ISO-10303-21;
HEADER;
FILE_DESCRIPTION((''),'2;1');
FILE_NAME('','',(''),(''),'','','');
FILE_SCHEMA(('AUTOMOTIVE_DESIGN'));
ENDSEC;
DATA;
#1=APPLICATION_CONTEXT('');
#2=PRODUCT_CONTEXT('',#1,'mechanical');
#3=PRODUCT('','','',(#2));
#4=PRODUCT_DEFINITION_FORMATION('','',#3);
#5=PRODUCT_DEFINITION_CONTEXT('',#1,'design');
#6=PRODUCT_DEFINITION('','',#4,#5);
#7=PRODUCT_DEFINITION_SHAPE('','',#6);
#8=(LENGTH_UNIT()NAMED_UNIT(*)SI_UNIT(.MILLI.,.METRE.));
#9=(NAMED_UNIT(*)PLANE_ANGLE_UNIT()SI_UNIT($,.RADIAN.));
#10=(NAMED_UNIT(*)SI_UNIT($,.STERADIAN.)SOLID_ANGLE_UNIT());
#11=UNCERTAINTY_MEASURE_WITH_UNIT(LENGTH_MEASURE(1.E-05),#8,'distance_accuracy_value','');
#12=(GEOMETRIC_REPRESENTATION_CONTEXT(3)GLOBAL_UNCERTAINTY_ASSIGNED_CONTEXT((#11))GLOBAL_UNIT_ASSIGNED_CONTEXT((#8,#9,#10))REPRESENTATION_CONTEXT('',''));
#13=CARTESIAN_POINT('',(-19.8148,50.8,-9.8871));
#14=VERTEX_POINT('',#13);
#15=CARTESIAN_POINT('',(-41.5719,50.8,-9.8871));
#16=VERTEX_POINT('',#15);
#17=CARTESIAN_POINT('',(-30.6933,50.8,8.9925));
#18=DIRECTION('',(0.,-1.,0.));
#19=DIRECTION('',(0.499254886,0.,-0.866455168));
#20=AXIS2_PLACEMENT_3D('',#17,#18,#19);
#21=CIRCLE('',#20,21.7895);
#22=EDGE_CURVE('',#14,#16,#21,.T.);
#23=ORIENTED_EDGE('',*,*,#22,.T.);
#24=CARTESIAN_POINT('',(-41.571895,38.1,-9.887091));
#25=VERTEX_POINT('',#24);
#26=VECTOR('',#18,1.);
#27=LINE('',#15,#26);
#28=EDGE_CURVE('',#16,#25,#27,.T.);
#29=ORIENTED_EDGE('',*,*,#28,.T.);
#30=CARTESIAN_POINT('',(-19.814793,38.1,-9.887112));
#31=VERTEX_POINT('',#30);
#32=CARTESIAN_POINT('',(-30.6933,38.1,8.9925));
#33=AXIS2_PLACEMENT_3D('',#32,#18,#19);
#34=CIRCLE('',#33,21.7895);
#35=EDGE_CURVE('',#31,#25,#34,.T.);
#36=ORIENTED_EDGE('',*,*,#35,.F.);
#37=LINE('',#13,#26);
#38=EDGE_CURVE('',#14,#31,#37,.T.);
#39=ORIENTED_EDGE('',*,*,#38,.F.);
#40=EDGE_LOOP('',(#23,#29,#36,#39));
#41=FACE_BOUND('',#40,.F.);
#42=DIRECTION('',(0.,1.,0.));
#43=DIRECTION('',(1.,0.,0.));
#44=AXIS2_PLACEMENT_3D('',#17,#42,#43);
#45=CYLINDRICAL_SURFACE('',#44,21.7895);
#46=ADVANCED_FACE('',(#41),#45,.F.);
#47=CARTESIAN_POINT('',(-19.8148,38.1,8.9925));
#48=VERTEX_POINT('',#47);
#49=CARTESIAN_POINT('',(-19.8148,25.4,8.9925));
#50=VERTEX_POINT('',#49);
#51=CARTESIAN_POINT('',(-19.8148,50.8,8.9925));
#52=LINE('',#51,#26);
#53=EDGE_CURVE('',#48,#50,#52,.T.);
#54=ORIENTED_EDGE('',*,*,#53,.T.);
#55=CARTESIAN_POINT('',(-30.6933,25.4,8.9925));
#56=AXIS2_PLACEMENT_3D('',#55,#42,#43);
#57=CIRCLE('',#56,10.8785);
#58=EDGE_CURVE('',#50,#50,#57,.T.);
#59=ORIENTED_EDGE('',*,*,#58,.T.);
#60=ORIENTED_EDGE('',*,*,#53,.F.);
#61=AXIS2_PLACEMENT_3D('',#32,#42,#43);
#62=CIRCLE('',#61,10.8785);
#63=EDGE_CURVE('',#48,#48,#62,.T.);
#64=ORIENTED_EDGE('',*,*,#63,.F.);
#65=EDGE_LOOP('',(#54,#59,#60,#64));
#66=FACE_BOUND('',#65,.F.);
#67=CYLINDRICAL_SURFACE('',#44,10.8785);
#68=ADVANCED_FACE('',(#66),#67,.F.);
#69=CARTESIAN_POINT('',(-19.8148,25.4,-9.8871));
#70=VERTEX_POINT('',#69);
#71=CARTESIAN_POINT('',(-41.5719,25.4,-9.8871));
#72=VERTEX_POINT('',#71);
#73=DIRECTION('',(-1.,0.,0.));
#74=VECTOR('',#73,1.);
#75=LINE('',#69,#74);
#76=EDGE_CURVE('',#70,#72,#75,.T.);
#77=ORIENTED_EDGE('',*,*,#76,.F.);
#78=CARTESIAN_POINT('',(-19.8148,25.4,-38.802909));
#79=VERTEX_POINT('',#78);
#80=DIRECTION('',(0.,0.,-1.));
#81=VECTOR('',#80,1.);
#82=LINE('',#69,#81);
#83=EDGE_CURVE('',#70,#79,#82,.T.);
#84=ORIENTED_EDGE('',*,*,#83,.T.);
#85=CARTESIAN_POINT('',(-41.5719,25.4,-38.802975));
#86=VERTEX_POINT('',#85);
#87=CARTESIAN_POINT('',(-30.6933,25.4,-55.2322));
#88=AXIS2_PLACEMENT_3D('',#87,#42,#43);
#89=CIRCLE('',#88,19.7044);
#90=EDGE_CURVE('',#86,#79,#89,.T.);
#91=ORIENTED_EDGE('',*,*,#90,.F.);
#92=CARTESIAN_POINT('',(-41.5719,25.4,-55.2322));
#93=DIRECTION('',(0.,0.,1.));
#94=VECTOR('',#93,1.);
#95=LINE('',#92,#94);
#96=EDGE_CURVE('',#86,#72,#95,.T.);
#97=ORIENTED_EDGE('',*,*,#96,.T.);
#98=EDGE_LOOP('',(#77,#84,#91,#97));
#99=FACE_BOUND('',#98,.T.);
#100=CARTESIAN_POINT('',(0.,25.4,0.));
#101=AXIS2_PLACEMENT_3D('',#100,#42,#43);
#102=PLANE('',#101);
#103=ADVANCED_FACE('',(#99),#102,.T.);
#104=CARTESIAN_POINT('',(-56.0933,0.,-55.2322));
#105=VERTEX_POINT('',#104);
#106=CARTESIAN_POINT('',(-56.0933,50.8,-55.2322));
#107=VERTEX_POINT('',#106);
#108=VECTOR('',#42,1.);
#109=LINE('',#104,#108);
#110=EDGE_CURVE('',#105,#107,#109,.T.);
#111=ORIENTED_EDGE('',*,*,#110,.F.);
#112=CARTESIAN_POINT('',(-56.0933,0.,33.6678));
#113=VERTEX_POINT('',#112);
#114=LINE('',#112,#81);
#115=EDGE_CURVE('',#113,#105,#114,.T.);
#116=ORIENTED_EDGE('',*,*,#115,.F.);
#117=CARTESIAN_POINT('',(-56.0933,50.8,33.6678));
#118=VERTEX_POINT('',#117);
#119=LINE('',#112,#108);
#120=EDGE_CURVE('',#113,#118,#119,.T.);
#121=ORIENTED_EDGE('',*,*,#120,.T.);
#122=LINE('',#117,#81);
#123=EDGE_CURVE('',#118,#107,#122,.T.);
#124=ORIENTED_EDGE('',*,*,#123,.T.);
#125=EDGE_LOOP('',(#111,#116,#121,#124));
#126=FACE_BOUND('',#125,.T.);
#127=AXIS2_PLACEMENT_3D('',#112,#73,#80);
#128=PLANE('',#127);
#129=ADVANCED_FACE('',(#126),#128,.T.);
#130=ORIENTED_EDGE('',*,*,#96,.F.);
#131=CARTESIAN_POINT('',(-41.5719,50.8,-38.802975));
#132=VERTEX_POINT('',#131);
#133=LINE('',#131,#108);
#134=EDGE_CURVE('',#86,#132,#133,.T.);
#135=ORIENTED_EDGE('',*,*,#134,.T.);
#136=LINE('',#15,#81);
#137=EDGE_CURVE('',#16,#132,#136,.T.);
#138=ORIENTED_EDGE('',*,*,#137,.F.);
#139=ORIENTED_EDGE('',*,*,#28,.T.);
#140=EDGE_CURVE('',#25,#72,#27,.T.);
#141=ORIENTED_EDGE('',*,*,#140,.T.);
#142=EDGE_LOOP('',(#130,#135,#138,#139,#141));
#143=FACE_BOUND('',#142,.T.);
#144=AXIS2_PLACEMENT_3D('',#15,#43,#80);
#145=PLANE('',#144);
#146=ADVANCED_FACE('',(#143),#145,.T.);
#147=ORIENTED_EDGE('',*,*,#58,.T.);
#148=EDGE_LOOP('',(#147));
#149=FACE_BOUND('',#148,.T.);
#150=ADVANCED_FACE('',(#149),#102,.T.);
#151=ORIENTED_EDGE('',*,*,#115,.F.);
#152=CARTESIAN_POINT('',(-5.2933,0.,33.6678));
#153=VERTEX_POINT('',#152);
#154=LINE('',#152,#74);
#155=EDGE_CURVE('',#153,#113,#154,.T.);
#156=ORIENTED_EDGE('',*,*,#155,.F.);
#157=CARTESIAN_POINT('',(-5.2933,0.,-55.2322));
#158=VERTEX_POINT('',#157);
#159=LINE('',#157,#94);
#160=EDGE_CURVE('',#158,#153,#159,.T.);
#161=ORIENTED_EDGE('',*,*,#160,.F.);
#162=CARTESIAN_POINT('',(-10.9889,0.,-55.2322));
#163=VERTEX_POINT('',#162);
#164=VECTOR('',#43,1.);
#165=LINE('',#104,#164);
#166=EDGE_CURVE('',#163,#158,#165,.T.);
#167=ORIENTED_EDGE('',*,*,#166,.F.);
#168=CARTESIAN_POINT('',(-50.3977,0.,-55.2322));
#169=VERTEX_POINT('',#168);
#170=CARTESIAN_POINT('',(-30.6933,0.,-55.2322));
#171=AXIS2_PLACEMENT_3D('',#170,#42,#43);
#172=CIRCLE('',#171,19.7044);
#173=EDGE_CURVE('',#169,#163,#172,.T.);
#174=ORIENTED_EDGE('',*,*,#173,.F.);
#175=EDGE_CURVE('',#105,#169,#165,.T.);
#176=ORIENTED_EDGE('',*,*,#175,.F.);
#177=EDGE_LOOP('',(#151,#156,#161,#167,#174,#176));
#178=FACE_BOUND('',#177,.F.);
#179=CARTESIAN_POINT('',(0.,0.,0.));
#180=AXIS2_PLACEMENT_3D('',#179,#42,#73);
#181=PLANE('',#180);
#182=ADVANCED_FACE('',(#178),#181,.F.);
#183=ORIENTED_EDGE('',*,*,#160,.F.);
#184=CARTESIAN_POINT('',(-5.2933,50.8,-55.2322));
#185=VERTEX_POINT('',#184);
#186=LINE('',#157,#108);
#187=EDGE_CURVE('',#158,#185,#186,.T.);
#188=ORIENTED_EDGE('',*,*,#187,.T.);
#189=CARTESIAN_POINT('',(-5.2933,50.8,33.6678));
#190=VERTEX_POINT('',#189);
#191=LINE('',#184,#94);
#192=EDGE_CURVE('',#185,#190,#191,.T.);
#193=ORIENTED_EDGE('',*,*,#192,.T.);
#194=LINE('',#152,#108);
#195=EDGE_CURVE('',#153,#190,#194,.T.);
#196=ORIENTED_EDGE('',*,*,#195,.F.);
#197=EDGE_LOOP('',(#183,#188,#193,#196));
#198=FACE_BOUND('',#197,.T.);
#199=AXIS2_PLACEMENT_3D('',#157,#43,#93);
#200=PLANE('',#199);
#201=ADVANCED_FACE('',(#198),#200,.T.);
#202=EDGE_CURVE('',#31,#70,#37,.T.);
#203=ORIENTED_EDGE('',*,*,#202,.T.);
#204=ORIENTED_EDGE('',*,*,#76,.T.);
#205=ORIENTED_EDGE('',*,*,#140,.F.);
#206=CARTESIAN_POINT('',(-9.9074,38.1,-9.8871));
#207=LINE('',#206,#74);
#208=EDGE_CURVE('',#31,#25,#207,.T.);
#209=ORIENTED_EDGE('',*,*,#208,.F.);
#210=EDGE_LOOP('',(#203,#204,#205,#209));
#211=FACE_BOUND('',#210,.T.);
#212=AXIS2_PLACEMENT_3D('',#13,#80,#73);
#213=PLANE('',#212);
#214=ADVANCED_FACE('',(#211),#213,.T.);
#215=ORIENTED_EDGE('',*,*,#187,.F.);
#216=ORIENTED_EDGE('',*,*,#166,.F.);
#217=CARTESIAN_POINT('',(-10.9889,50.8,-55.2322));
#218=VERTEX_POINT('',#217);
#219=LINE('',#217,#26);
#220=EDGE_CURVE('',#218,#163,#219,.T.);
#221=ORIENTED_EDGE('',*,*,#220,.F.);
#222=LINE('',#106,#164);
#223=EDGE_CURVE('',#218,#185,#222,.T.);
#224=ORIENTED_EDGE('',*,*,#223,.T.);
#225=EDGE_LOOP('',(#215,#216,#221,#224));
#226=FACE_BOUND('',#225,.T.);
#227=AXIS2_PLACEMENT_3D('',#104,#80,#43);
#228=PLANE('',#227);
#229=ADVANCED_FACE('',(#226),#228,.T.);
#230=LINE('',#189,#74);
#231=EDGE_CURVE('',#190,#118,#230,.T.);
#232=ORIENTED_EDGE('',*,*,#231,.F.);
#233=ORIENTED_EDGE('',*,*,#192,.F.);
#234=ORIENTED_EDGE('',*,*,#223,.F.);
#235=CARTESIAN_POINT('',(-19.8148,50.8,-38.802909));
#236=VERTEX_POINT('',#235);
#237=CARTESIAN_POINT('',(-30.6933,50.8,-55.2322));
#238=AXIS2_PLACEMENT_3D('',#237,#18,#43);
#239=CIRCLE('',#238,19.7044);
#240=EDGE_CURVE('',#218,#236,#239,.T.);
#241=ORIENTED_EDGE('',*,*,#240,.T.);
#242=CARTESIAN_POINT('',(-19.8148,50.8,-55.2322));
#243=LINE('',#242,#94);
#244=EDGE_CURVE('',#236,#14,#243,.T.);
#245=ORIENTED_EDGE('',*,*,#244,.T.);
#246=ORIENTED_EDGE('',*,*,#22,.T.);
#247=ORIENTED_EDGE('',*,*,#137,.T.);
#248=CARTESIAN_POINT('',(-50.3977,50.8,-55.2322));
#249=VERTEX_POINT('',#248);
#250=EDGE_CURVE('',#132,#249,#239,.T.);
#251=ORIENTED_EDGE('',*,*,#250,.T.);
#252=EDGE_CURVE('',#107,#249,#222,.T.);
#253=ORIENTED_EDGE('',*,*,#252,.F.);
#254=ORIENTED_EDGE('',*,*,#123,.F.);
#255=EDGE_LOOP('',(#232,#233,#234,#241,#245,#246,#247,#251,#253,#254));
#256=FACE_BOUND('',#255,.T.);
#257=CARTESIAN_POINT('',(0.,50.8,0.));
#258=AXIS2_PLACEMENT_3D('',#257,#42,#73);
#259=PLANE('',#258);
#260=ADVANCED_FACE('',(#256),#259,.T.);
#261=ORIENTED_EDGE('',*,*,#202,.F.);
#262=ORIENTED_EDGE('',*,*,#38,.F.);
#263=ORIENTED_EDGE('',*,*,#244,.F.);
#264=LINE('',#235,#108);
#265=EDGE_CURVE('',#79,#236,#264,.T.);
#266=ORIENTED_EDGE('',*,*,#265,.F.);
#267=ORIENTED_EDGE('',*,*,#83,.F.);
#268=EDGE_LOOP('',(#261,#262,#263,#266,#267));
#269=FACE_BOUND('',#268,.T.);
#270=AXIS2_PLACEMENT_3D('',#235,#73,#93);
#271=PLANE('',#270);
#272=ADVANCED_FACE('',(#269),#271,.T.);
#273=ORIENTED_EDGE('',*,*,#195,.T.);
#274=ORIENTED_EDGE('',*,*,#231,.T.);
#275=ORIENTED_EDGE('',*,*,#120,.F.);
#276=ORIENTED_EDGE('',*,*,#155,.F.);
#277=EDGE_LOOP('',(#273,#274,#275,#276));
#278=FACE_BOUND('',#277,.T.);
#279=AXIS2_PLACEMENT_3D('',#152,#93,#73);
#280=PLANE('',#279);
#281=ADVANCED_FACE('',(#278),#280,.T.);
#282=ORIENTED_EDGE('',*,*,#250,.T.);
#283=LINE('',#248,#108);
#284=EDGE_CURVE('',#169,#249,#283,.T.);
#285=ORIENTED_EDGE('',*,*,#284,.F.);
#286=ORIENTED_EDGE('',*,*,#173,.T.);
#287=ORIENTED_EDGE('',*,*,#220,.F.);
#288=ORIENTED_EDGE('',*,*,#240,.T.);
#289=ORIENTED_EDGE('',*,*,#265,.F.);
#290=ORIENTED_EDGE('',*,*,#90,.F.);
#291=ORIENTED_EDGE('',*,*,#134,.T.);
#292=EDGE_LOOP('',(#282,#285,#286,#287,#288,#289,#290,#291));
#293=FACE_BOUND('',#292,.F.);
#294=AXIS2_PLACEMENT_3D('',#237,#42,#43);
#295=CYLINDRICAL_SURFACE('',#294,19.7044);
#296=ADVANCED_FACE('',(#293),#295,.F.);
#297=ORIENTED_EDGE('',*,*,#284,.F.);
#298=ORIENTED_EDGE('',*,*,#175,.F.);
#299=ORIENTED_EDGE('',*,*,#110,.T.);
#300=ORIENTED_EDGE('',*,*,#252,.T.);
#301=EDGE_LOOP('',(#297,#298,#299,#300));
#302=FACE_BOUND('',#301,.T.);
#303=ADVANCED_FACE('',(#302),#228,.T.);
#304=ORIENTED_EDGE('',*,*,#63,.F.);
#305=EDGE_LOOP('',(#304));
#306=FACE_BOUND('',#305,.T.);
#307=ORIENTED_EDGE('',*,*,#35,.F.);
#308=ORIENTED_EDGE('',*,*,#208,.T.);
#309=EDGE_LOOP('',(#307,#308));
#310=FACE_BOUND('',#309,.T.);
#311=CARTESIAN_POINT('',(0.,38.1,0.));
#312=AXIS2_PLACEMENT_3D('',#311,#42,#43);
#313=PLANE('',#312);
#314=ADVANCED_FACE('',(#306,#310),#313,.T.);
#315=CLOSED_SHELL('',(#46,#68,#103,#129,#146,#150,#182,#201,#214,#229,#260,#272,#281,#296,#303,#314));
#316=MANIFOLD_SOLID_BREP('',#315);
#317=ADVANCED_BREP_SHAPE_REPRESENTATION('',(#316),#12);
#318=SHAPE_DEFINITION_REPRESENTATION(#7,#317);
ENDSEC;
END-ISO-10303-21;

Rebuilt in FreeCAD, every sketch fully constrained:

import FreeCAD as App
import Part
import Sketcher

V = App.Vector
Q = App.Units.Quantity


def add_polygon(sketch, points):
    """Adds a closed chain of lines whose ends are joined by coincident constraints."""
    first, n = sketch.GeometryCount, len(points)
    for a, b in zip(points, points[1:] + points[:1]):
        sketch.addGeometry(Part.LineSegment(App.Vector(*a, 0), App.Vector(*b, 0)), False)
    for i in range(n):
        sketch.addConstraint(Sketcher.Constraint("Coincident", first + i, 2, first + (i + 1) % n, 1))

doc = App.newDocument("Part")
body = doc.addObject("PartDesign::Body", "Body")

# Sketch on XZ plane
sketch1 = body.newObject("Sketcher::SketchObject", "Sketch")
sketch1.AttachmentSupport = (doc.getObject("XZ_Plane"), [""])
sketch1.MapMode = "FlatFace"
add_polygon(sketch1, [(-56.0933, 33.6678), (-5.2933, 33.6678), (-5.2933, -55.2322), (-56.0933, -55.2322)])  # lines 0-3
sketch1.addConstraint(Sketcher.Constraint("Horizontal", 0))
sketch1.addConstraint(Sketcher.Constraint("Vertical", 1))
sketch1.addConstraint(Sketcher.Constraint("Horizontal", 2))
sketch1.addConstraint(Sketcher.Constraint("Vertical", 3))
sketch1.addConstraint(Sketcher.Constraint("DistanceX", 0, 1, 0, 2, Q("2 in")))
sketch1.addConstraint(Sketcher.Constraint("DistanceY", 1, 2, 1, 1, Q("3.5 in")))
sketch1.addConstraint(Sketcher.Constraint("DistanceX", 0, 2, -1, 1, Q("0.2084 in")))
sketch1.addConstraint(Sketcher.Constraint("DistanceY", -1, 1, 0, 2, Q("1.3255 in")))
pad1 = body.newObject("PartDesign::Pad", "Pad")
pad1.Profile = sketch1
pad1.Length = Q("2 in")
pad1.Reversed = True

# Sketch on XZ plane
sketch2 = body.newObject("Sketcher::SketchObject", "Sketch001")
sketch2.AttachmentSupport = (doc.getObject("XZ_Plane"), [""])
sketch2.MapMode = "FlatFace"
sketch2.AttachmentOffset = App.Placement(V(0, 0, -2 * 25.4), App.Rotation())
sketch2.addGeometry(Part.Circle(V(-30.6933, -55.2322, 0), V(0, 0, 1), 19.7044), False)
sketch2.addConstraint(Sketcher.Constraint("Diameter", 0, 39.4088))
sketch2.addConstraint(Sketcher.Constraint("DistanceX", 0, 3, -1, 1, Q("1.2084 in")))
sketch2.addConstraint(Sketcher.Constraint("DistanceY", 0, 3, -1, 1, Q("2.1745 in")))
pocket1 = body.newObject("PartDesign::Pocket", "Pocket")
pocket1.Profile = sketch2
pocket1.Type = "UpToFirst"
pocket1.Reversed = True

# Sketch on XZ plane
sketch3 = body.newObject("Sketcher::SketchObject", "Sketch002")
sketch3.AttachmentSupport = (doc.getObject("XZ_Plane"), [""])
sketch3.MapMode = "FlatFace"
sketch3.AttachmentOffset = App.Placement(V(0, 0, -2 * 25.4), App.Rotation())
sketch3.addGeometry(Part.Circle(V(-30.6933, 8.9925, 0), V(0, 0, 1), 21.7895), False)
sketch3.addGeometry(Part.Circle(V(-30.6933, 8.9925, 0), V(0, 0, 1), 10.8785), False)
sketch3.addConstraint(Sketcher.Constraint("Coincident", 1, 3, 0, 3))
sketch3.addConstraint(Sketcher.Constraint("Diameter", 0, Q("1.7157 in")))
sketch3.addConstraint(Sketcher.Constraint("Diameter", 1, 21.757))
sketch3.addConstraint(Sketcher.Constraint("DistanceX", 0, 3, -1, 1, Q("1.2084 in")))
sketch3.addConstraint(Sketcher.Constraint("DistanceY", -1, 1, 0, 3, 8.9925))
pocket2 = body.newObject("PartDesign::Pocket", "Pocket001")
pocket2.Profile = sketch3
pocket2.Length = Q("0.5 in")
pocket2.Reversed = True

# Sketch on XZ plane
sketch4 = body.newObject("Sketcher::SketchObject", "Sketch003")
sketch4.AttachmentSupport = (doc.getObject("XZ_Plane"), [""])
sketch4.MapMode = "FlatFace"
sketch4.AttachmentOffset = App.Placement(V(0, 0, -2 * 25.4), App.Rotation())
sketch4.addGeometry(Part.Circle(V(-30.6933, 8.9925, 0), V(0, 0, 1), 10.8785), False)
sketch4.addConstraint(Sketcher.Constraint("Diameter", 0, 21.757))
sketch4.addConstraint(Sketcher.Constraint("DistanceX", 0, 3, -1, 1, Q("1.2084 in")))
sketch4.addConstraint(Sketcher.Constraint("DistanceY", -1, 1, 0, 3, 8.9925))
pocket3 = body.newObject("PartDesign::Pocket", "Pocket002")
pocket3.Profile = sketch4
pocket3.Length = Q("1 in")
pocket3.Reversed = True

# Sketch on XZ plane
sketch5 = body.newObject("Sketcher::SketchObject", "Sketch004")
sketch5.AttachmentSupport = (doc.getObject("XZ_Plane"), [""])
sketch5.MapMode = "FlatFace"
sketch5.AttachmentOffset = App.Placement(V(0, 0, -2 * 25.4), App.Rotation())
add_polygon(sketch5, [(-41.5719, -9.8871), (-19.8148, -9.8871), (-19.8148, -55.2322), (-41.5719, -55.2322)])  # lines 0-3
sketch5.addConstraint(Sketcher.Constraint("Horizontal", 0))
sketch5.addConstraint(Sketcher.Constraint("Vertical", 1))
sketch5.addConstraint(Sketcher.Constraint("Horizontal", 2))
sketch5.addConstraint(Sketcher.Constraint("Vertical", 3))
sketch5.addConstraint(Sketcher.Constraint("DistanceX", 0, 1, 0, 2, 21.757))
sketch5.addConstraint(Sketcher.Constraint("DistanceY", 1, 2, 1, 1, 45.345))
sketch5.addConstraint(Sketcher.Constraint("DistanceX", 0, 2, -1, 1, Q("0.7801 in")))
sketch5.addConstraint(Sketcher.Constraint("DistanceY", 1, 2, -1, 1, Q("2.1745 in")))
pocket4 = body.newObject("PartDesign::Pocket", "Pocket003")
pocket4.Profile = sketch5
pocket4.Length = Q("1 in")
pocket4.Reversed = True

doc.recompute()
